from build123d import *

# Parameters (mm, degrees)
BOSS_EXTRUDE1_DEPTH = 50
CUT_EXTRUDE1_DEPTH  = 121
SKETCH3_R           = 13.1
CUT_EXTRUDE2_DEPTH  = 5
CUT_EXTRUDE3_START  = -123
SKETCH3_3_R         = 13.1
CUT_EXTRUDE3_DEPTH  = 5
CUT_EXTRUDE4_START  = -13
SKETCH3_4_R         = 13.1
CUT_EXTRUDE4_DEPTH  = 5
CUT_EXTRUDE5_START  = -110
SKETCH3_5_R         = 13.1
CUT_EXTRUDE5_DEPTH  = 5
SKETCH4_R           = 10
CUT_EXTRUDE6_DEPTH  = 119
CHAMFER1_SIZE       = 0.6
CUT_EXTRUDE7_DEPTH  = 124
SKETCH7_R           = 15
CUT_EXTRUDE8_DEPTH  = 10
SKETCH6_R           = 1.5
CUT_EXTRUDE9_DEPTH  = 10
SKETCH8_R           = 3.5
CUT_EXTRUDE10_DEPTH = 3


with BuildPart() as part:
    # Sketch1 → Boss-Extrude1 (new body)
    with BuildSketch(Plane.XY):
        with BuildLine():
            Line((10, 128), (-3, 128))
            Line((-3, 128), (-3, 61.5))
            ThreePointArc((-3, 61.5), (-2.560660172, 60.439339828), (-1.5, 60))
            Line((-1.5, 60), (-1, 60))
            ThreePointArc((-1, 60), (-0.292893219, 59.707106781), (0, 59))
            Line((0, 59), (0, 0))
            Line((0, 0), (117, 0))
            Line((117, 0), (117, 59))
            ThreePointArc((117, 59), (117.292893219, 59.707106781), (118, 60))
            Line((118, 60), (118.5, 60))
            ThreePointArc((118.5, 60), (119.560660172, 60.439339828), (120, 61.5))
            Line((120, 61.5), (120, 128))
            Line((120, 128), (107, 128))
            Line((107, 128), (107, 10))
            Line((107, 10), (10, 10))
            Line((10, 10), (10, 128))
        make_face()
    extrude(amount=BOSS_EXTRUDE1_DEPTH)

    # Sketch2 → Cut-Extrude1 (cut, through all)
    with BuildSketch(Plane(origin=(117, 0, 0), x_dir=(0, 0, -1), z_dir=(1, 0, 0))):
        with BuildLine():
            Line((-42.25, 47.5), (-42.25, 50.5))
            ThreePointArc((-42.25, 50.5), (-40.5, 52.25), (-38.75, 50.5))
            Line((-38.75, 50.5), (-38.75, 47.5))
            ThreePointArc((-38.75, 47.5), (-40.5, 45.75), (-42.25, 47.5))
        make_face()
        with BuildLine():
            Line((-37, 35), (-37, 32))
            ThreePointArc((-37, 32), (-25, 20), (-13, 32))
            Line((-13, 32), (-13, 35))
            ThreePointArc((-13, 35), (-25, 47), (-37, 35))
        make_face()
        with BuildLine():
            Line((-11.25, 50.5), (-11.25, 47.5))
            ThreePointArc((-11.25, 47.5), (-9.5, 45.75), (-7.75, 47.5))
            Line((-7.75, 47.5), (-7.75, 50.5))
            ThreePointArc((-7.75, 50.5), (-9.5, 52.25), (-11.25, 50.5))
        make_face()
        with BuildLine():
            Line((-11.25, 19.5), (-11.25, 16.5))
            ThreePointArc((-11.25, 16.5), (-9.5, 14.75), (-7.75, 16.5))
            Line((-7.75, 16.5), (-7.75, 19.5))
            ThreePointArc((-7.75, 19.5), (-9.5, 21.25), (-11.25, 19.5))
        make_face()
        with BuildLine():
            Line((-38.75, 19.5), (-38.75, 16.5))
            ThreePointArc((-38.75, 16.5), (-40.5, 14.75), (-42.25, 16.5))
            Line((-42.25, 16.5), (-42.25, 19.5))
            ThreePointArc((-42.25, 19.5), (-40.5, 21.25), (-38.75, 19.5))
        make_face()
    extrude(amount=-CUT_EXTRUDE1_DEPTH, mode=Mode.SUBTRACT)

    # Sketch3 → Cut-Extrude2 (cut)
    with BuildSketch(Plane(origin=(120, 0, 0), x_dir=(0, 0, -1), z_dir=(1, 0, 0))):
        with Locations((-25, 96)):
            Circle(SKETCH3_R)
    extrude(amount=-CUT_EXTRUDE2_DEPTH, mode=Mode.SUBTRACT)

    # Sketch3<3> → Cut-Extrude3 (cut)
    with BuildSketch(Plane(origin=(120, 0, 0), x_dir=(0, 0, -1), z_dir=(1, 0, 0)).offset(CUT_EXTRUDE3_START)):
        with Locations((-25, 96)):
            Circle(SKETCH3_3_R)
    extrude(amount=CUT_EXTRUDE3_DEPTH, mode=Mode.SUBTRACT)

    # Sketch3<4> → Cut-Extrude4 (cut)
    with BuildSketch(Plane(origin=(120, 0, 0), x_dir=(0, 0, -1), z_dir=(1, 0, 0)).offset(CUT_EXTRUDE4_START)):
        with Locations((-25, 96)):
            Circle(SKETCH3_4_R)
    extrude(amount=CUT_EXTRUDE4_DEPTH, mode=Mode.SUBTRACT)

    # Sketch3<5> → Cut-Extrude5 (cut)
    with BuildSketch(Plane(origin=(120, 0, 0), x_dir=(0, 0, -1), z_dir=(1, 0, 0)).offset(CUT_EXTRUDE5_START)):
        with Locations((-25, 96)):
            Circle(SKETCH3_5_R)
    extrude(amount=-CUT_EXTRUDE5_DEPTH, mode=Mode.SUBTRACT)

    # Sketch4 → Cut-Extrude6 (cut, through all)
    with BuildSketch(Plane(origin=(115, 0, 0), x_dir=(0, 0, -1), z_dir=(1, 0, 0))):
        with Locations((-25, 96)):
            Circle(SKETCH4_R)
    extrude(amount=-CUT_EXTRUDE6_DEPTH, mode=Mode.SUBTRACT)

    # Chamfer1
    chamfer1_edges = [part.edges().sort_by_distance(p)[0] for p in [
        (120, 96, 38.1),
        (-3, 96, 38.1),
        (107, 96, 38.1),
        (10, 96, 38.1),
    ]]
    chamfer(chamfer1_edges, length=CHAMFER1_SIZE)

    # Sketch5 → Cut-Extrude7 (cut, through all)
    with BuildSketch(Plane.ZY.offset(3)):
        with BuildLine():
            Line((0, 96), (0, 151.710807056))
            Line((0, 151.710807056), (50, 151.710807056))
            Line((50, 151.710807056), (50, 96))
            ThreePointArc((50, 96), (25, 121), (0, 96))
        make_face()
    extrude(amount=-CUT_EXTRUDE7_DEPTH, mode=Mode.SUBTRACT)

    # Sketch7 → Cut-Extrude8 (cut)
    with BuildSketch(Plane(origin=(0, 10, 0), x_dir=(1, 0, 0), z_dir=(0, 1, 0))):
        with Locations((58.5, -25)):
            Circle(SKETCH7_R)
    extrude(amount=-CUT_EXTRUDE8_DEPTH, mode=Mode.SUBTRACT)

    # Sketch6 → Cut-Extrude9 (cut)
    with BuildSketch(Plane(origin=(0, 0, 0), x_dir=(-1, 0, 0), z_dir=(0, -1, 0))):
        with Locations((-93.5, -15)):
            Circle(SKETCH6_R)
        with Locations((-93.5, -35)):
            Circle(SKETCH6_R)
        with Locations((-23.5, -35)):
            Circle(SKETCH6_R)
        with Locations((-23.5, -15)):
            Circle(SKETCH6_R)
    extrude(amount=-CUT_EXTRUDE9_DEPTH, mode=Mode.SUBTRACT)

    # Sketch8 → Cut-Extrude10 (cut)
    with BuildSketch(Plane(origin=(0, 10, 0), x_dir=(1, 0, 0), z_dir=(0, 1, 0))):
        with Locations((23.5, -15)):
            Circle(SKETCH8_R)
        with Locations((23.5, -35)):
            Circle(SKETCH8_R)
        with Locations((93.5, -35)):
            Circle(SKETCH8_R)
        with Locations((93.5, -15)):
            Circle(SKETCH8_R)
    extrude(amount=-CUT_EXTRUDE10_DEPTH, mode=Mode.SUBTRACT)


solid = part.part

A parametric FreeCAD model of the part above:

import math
import FreeCAD as App
import Part
import Sketcher
from FreeCAD import Vector
Q = App.Units.Quantity


def edges_at(feature, points):
    """Names of the edges that pass closest to the given points."""
    edges = feature.Shape.Edges
    near = lambda p: min(range(len(edges)), key=lambda i: edges[i].distToShape(Part.Vertex(*p))[0])
    return sorted({f"Edge{near(p) + 1}" for p in points})

doc = App.newDocument("Part")
params = doc.addObject("Spreadsheet::Sheet", "Params")
for row, (alias, value) in enumerate([
    ("sketch1_radius", "1 mm"),
    ("sketch1_radius2", "1.5 mm"),
    ("sketch1_width", "13 mm"),
    ("sketch1_width2", "117 mm"),
    ("sketch1_width3", "97 mm"),
    ("pad1_length", "50 mm"),
    ("sketch2_radius", "12 mm"),
    ("sketch2_width", "3 mm"),
    ("sketch2_radius2", "1.75 mm"),
    ("sketch3_diameter", "26.2 mm"),
    ("pocket2_length", "5 mm"),
    ("sketch4_diameter", "26.2 mm"),
    ("pocket3_length", "5 mm"),
    ("sketch5_diameter", "26.2 mm"),
    ("pocket4_length", "5 mm"),
    ("sketch6_diameter", "26.2 mm"),
    ("pocket5_length", "5 mm"),
    ("sketch7_diameter", "20 mm"),
    ("chamfer_size", "0.6 mm"),
    ("sketch8_radius", "25 mm"),
    ("sketch9_diameter", "30 mm"),
    ("pocket8_length", "10 mm"),
    ("sketch10_diameter", "3 mm"),
    ("pocket9_length", "10 mm"),
    ("sketch11_diameter", "7 mm"),
    ("pocket10_length", "3 mm"),
], start=1):
    params.set(f"A{row}", alias)
    params.set(f"B{row}", "=" + value)
    params.setAlias(f"B{row}", alias)

body = doc.addObject("PartDesign::Body", "Body")

sketch1 = body.newObject("Sketcher::SketchObject", "Sketch")
sketch1.AttachmentSupport = (doc.getObject("XY_Plane"), [""])
sketch1.MapMode = "FlatFace"
sketch1.addGeometry(Part.LineSegment(Vector(10, 128, 0), Vector(-3, 128, 0)), False)
sketch1.addGeometry(Part.LineSegment(Vector(-3, 128, 0), Vector(-3, 61.5, 0)), False)
sketch1.addGeometry(Part.ArcOfCircle(Part.Circle(Vector(-1.5, 61.5, 0), Vector(0, 0, 1), 1.5), math.radians(180), math.radians(270)), False)
sketch1.addGeometry(Part.LineSegment(Vector(-1.5, 60, 0), Vector(-1, 60, 0)), False)
sketch1.addGeometry(Part.ArcOfCircle(Part.Circle(Vector(-1, 59, 0), Vector(0, 0, 1), 1), math.radians(0), math.radians(90)), False)
sketch1.addGeometry(Part.LineSegment(Vector(0, 59, 0), Vector(0, 0, 0)), False)
sketch1.addGeometry(Part.LineSegment(Vector(0, 0, 0), Vector(117, 0, 0)), False)
sketch1.addGeometry(Part.LineSegment(Vector(117, 0, 0), Vector(117, 59, 0)), False)
sketch1.addGeometry(Part.ArcOfCircle(Part.Circle(Vector(118, 59, 0), Vector(0, 0, 1), 1), math.radians(90), math.radians(180)), False)
sketch1.addGeometry(Part.LineSegment(Vector(118, 60, 0), Vector(118.5, 60, 0)), False)
sketch1.addGeometry(Part.ArcOfCircle(Part.Circle(Vector(118.5, 61.5, 0), Vector(0, 0, 1), 1.5), math.radians(-90), math.radians(0)), False)
sketch1.addGeometry(Part.LineSegment(Vector(120, 61.5, 0), Vector(120, 128, 0)), False)
sketch1.addGeometry(Part.LineSegment(Vector(120, 128, 0), Vector(107, 128, 0)), False)
sketch1.addGeometry(Part.LineSegment(Vector(107, 128, 0), Vector(107, 10, 0)), False)
sketch1.addGeometry(Part.LineSegment(Vector(107, 10, 0), Vector(10, 10, 0)), False)
sketch1.addGeometry(Part.LineSegment(Vector(10, 10, 0), Vector(10, 128, 0)), False)
sketch1.addConstraint(Sketcher.Constraint("Coincident", 0, 2, 1, 1))
sketch1.addConstraint(Sketcher.Constraint("Tangent", 1, 2, 2, 1))
sketch1.addConstraint(Sketcher.Constraint("Tangent", 2, 2, 3, 1))
sketch1.addConstraint(Sketcher.Constraint("Tangent", 3, 2, 4, 2))
sketch1.addConstraint(Sketcher.Constraint("Tangent", 4, 1, 5, 1))
sketch1.addConstraint(Sketcher.Constraint("Coincident", 5, 2, 6, 1))
sketch1.addConstraint(Sketcher.Constraint("Coincident", 6, 2, 7, 1))
sketch1.addConstraint(Sketcher.Constraint("Tangent", 7, 2, 8, 2))
sketch1.addConstraint(Sketcher.Constraint("Tangent", 8, 1, 9, 1))
sketch1.addConstraint(Sketcher.Constraint("Tangent", 9, 2, 10, 1))
sketch1.addConstraint(Sketcher.Constraint("Tangent", 10, 2, 11, 1))
sketch1.addConstraint(Sketcher.Constraint("Coincident", 11, 2, 12, 1))
sketch1.addConstraint(Sketcher.Constraint("Coincident", 12, 2, 13, 1))
sketch1.addConstraint(Sketcher.Constraint("Coincident", 13, 2, 14, 1))
sketch1.addConstraint(Sketcher.Constraint("Coincident", 14, 2, 15, 1))
sketch1.addConstraint(Sketcher.Constraint("Coincident", 15, 2, 0, 1))
sketch1.addConstraint(Sketcher.Constraint("Horizontal", 0))
sketch1.addConstraint(Sketcher.Constraint("Vertical", 1))
sketch1.addConstraint(Sketcher.Constraint("Horizontal", 3))
sketch1.addConstraint(Sketcher.Constraint("Vertical", 5))
sketch1.addConstraint(Sketcher.Constraint("Horizontal", 6))
sketch1.addConstraint(Sketcher.Constraint("Vertical", 7))
sketch1.addConstraint(Sketcher.Constraint("Horizontal", 9))
sketch1.addConstraint(Sketcher.Constraint("Vertical", 11))
sketch1.addConstraint(Sketcher.Constraint("Horizontal", 12))
sketch1.addConstraint(Sketcher.Constraint("Vertical", 13))
sketch1.addConstraint(Sketcher.Constraint("Horizontal", 14))
sketch1.addConstraint(Sketcher.Constraint("Vertical", 15))
sketch1.addConstraint(Sketcher.Constraint("Coincident", 5, 2, -1, 1))
sketch1.addConstraint(Sketcher.Constraint("Equal", 4, 8))
sketch1.addConstraint(Sketcher.Constraint("Equal", 2, 10))
sketch1.addConstraint(Sketcher.Constraint("Horizontal", 4, 3, 8, 3))
sketch1.addConstraint(Sketcher.Constraint("Horizontal", 0, 2, 11, 2))
sketch1.addConstraint(Sketcher.Constraint("Equal", 3, 9))
sketch1.addConstraint(Sketcher.Constraint("Equal", 0, 12))
sketch1.addConstraint(Sketcher.Constraint("Radius", 4, Q("1 mm")))
sketch1.addConstraint(Sketcher.Constraint("Radius", 2, Q("1.5 mm")))
sketch1.addConstraint(Sketcher.Constraint("DistanceX", 0, 2, 0, 1, Q("13 mm")))
sketch1.addConstraint(Sketcher.Constraint("DistanceX", 6, 1, 6, 2, Q("117 mm")))
sketch1.addConstraint(Sketcher.Constraint("DistanceX", 14, 2, 14, 1, Q("97 mm")))
sketch1.addConstraint(Sketcher.Constraint("DistanceY", 5, 2, 5, 1, Q("59 mm")))
sketch1.addConstraint(Sketcher.Constraint("DistanceY", 13, 2, 13, 1, Q("118 mm")))
sketch1.addConstraint(Sketcher.Constraint("DistanceY", 1, 2, 1, 1, Q("66.5 mm")))
sketch1.setExpression("Constraints[35]", "Params.sketch1_radius")
sketch1.setExpression("Constraints[36]", "Params.sketch1_radius2")
sketch1.setExpression("Constraints[37]", "Params.sketch1_width")
sketch1.setExpression("Constraints[38]", "Params.sketch1_width2")
sketch1.setExpression("Constraints[39]", "Params.sketch1_width3")
pad1 = body.newObject("PartDesign::Pad", "Pad")
pad1.Profile = sketch1
pad1.setExpression("Length", "Params.pad1_length")

sketch2 = body.newObject("Sketcher::SketchObject", "Sketch001")
sketch2.AttachmentSupport = (doc.getObject("YZ_Plane"), [""])
sketch2.MapMode = "FlatFace"
sketch2.AttachmentOffset = App.Placement(Vector(0, 0, 117), App.Rotation())
sketch2.addGeometry(Part.LineSegment(Vector(50.5, 42.25, 0), Vector(47.5, 42.25, 0)), False)
sketch2.addGeometry(Part.ArcOfCircle(Part.Circle(Vector(47.5, 40.5, 0), Vector(0, 0, 1), 1.75), math.radians(90), math.radians(270)), False)
sketch2.addGeometry(Part.LineSegment(Vector(47.5, 38.75, 0), Vector(50.5, 38.75, 0)), False)
sketch2.addGeometry(Part.ArcOfCircle(Part.Circle(Vector(50.5, 40.5, 0), Vector(0, 0, 1), 1.75), math.radians(-90), math.radians(90)), False)
sketch2.addGeometry(Part.LineSegment(Vector(35, 37, 0), Vector(32, 37, 0)), False)
sketch2.addGeometry(Part.ArcOfCircle(Part.Circle(Vector(32, 25, 0), Vector(0, 0, 1), 12), math.radians(90), math.radians(270)), False)
sketch2.addGeometry(Part.LineSegment(Vector(32, 13, 0), Vector(35, 13, 0)), False)
sketch2.addGeometry(Part.ArcOfCircle(Part.Circle(Vector(35, 25, 0), Vector(0, 0, 1), 12), math.radians(-90), math.radians(90)), False)
sketch2.addGeometry(Part.LineSegment(Vector(50.5, 11.25, 0), Vector(47.5, 11.25, 0)), False)
sketch2.addGeometry(Part.ArcOfCircle(Part.Circle(Vector(47.5, 9.5, 0), Vector(0, 0, 1), 1.75), math.radians(90), math.radians(270)), False)
sketch2.addGeometry(Part.LineSegment(Vector(47.5, 7.75, 0), Vector(50.5, 7.75, 0)), False)
sketch2.addGeometry(Part.ArcOfCircle(Part.Circle(Vector(50.5, 9.5, 0), Vector(0, 0, 1), 1.75), math.radians(-90), math.radians(90)), False)
sketch2.addGeometry(Part.LineSegment(Vector(19.5, 11.25, 0), Vector(16.5, 11.25, 0)), False)
sketch2.addGeometry(Part.ArcOfCircle(Part.Circle(Vector(16.5, 9.5, 0), Vector(0, 0, 1), 1.75), math.radians(90), math.radians(270)), False)
sketch2.addGeometry(Part.LineSegment(Vector(16.5, 7.75, 0), Vector(19.5, 7.75, 0)), False)
sketch2.addGeometry(Part.ArcOfCircle(Part.Circle(Vector(19.5, 9.5, 0), Vector(0, 0, 1), 1.75), math.radians(-90), math.radians(90)), False)
sketch2.addGeometry(Part.LineSegment(Vector(16.5, 38.75, 0), Vector(19.5, 38.75, 0)), False)
sketch2.addGeometry(Part.ArcOfCircle(Part.Circle(Vector(19.5, 40.5, 0), Vector(0, 0, 1), 1.75), math.radians(-90), math.radians(90)), False)
sketch2.addGeometry(Part.LineSegment(Vector(19.5, 42.25, 0), Vector(16.5, 42.25, 0)), False)
sketch2.addGeometry(Part.ArcOfCircle(Part.Circle(Vector(16.5, 40.5, 0), Vector(0, 0, 1), 1.75), math.radians(90), math.radians(270)), False)
sketch2.addConstraint(Sketcher.Constraint("Tangent", 0, 2, 1, 1))
sketch2.addConstraint(Sketcher.Constraint("Tangent", 1, 2, 2, 1))
sketch2.addConstraint(Sketcher.Constraint("Tangent", 2, 2, 3, 1))
sketch2.addConstraint(Sketcher.Constraint("Tangent", 3, 2, 0, 1))
sketch2.addConstraint(Sketcher.Constraint("Tangent", 4, 2, 5, 1))
sketch2.addConstraint(Sketcher.Constraint("Tangent", 5, 2, 6, 1))
sketch2.addConstraint(Sketcher.Constraint("Tangent", 6, 2, 7, 1))
sketch2.addConstraint(Sketcher.Constraint("Tangent", 7, 2, 4, 1))
sketch2.addConstraint(Sketcher.Constraint("Tangent", 8, 2, 9, 1))
sketch2.addConstraint(Sketcher.Constraint("Tangent", 9, 2, 10, 1))
sketch2.addConstraint(Sketcher.Constraint("Tangent", 10, 2, 11, 1))
sketch2.addConstraint(Sketcher.Constraint("Tangent", 11, 2, 8, 1))
sketch2.addConstraint(Sketcher.Constraint("Tangent", 12, 2, 13, 1))
sketch2.addConstraint(Sketcher.Constraint("Tangent", 13, 2, 14, 1))
sketch2.addConstraint(Sketcher.Constraint("Tangent", 14, 2, 15, 1))
sketch2.addConstraint(Sketcher.Constraint("Tangent", 15, 2, 12, 1))
sketch2.addConstraint(Sketcher.Constraint("Tangent", 16, 2, 17, 1))
sketch2.addConstraint(Sketcher.Constraint("Tangent", 17, 2, 18, 1))
sketch2.addConstraint(Sketcher.Constraint("Tangent", 18, 2, 19, 1))
sketch2.addConstraint(Sketcher.Constraint("Tangent", 19, 2, 16, 1))
sketch2.addConstraint(Sketcher.Constraint("Horizontal", 0))
sketch2.addConstraint(Sketcher.Constraint("Horizontal", 2))
sketch2.addConstraint(Sketcher.Constraint("Horizontal", 4))
sketch2.addConstraint(Sketcher.Constraint("Horizontal", 6))
sketch2.addConstraint(Sketcher.Constraint("Horizontal", 8))
sketch2.addConstraint(Sketcher.Constraint("Horizontal", 10))
sketch2.addConstraint(Sketcher.Constraint("Horizontal", 12))
sketch2.addConstraint(Sketcher.Constraint("Horizontal", 14))
sketch2.addConstraint(Sketcher.Constraint("Horizontal", 16))
sketch2.addConstraint(Sketcher.Constraint("Horizontal", 18))
sketch2.addConstraint(Sketcher.Constraint("Equal", 3, 9))
sketch2.addConstraint(Sketcher.Constraint("Equal", 11, 13))
sketch2.addConstraint(Sketcher.Constraint("Equal", 15, 17))
sketch2.addConstraint(Sketcher.Constraint("Horizontal", 11, 3, 13, 3))
sketch2.addConstraint(Sketcher.Constraint("Horizontal", 3, 3, 17, 3))
sketch2.addConstraint(Sketcher.Constraint("Vertical", 1, 3, 9, 3))
sketch2.addConstraint(Sketcher.Constraint("Vertical", 3, 3, 11, 3))
sketch2.addConstraint(Sketcher.Constraint("Vertical", 15, 3, 17, 3))
sketch2.addConstraint(Sketcher.Constraint("Vertical", 13, 3, 19, 3))
sketch2.addConstraint(Sketcher.Constraint("Equal", 2, 4))
sketch2.addConstraint(Sketcher.Constraint("Equal", 10, 12))
sketch2.addConstraint(Sketcher.Constraint("Radius", 5, Q("12 mm")))
sketch2.addConstraint(Sketcher.Constraint("DistanceX", 0, 2, 0, 1, Q("3 mm")))
sketch2.addConstraint(Sketcher.Constraint("Radius", 1, Q("1.75 mm")))
sketch2.addConstraint(Sketcher.Constraint("DistanceX", -1, 1, 5, 3, Q("32 mm")))
sketch2.addConstraint(Sketcher.Constraint("DistanceY", -1, 1, 5, 3, Q("25 mm")))
sketch2.addConstraint(Sketcher.Constraint("DistanceY", 9, 3, 1, 3, Q("31 mm")))
sketch2.addConstraint(Sketcher.Constraint("DistanceX", 13, 3, 9, 3, Q("31 mm")))
sketch2.addConstraint(Sketcher.Constraint("DistanceX", -1, 1, 1, 3, Q("47.5 mm")))
sketch2.addConstraint(Sketcher.Constraint("DistanceY", -1, 1, 1, 3, Q("40.5 mm")))
sketch2.setExpression("Constraints[41]", "Params.sketch2_radius")
sketch2.setExpression("Constraints[42]", "Params.sketch2_width")
sketch2.setExpression("Constraints[43]", "Params.sketch2_radius2")
pocket1 = body.newObject("PartDesign::Pocket", "Pocket")
pocket1.Profile = sketch2
pocket1.Type = "ThroughAll"

sketch3 = body.newObject("Sketcher::SketchObject", "Sketch002")
sketch3.AttachmentSupport = (doc.getObject("YZ_Plane"), [""])
sketch3.MapMode = "FlatFace"
sketch3.AttachmentOffset = App.Placement(Vector(0, 0, 120), App.Rotation())
sketch3.addGeometry(Part.Circle(Vector(96, 25, 0), Vector(0, 0, 1), 13.1), False)
sketch3.addConstraint(Sketcher.Constraint("Diameter", 0, Q("26.2 mm")))
sketch3.addConstraint(Sketcher.Constraint("DistanceX", -1, 1, 0, 3, Q("96 mm")))
sketch3.addConstraint(Sketcher.Constraint("DistanceY", -1, 1, 0, 3, Q("25 mm")))
sketch3.setExpression("Constraints[0]", "Params.sketch3_diameter")
pocket2 = body.newObject("PartDesign::Pocket", "Pocket001")
pocket2.Profile = sketch3
pocket2.setExpression("Length", "Params.pocket2_length")

sketch4 = body.newObject("Sketcher::SketchObject", "Sketch003")
sketch4.AttachmentSupport = (doc.getObject("YZ_Plane"), [""])
sketch4.MapMode = "FlatFace"
sketch4.AttachmentOffset = App.Placement(Vector(0, 0, -3), App.Rotation())
sketch4.addGeometry(Part.Circle(Vector(96, 25, 0), Vector(0, 0, 1), 13.1), False)
sketch4.addConstraint(Sketcher.Constraint("Diameter", 0, Q("26.2 mm")))
sketch4.addConstraint(Sketcher.Constraint("DistanceX", -1, 1, 0, 3, Q("96 mm")))
sketch4.addConstraint(Sketcher.Constraint("DistanceY", -1, 1, 0, 3, Q("25 mm")))
sketch4.setExpression("Constraints[0]", "Params.sketch4_diameter")
pocket3 = body.newObject("PartDesign::Pocket", "Pocket002")
pocket3.Profile = sketch4
pocket3.setExpression("Length", "Params.pocket3_length")
pocket3.Reversed = True

sketch5 = body.newObject("Sketcher::SketchObject", "Sketch004")
sketch5.AttachmentSupport = (doc.getObject("YZ_Plane"), [""])
sketch5.MapMode = "FlatFace"
sketch5.AttachmentOffset = App.Placement(Vector(0, 0, 107), App.Rotation())
sketch5.addGeometry(Part.Circle(Vector(96, 25, 0), Vector(0, 0, 1), 13.1), False)
sketch5.addConstraint(Sketcher.Constraint("Diameter", 0, Q("26.2 mm")))
sketch5.addConstraint(Sketcher.Constraint("DistanceX", -1, 1, 0, 3, Q("96 mm")))
sketch5.addConstraint(Sketcher.Constraint("DistanceY", -1, 1, 0, 3, Q("25 mm")))
sketch5.setExpression("Constraints[0]", "Params.sketch5_diameter")
pocket4 = body.newObject("PartDesign::Pocket", "Pocket003")
pocket4.Profile = sketch5
pocket4.setExpression("Length", "Params.pocket4_length")
pocket4.Reversed = True

sketch6 = body.newObject("Sketcher::SketchObject", "Sketch005")
sketch6.AttachmentSupport = (doc.getObject("YZ_Plane"), [""])
sketch6.MapMode = "FlatFace"
sketch6.AttachmentOffset = App.Placement(Vector(0, 0, 10), App.Rotation())
sketch6.addGeometry(Part.Circle(Vector(96, 25, 0), Vector(0, 0, 1), 13.1), False)
sketch6.addConstraint(Sketcher.Constraint("Diameter", 0, Q("26.2 mm")))
sketch6.addConstraint(Sketcher.Constraint("DistanceX", -1, 1, 0, 3, Q("96 mm")))
sketch6.addConstraint(Sketcher.Constraint("DistanceY", -1, 1, 0, 3, Q("25 mm")))
sketch6.setExpression("Constraints[0]", "Params.sketch6_diameter")
pocket5 = body.newObject("PartDesign::Pocket", "Pocket004")
pocket5.Profile = sketch6
pocket5.setExpression("Length", "Params.pocket5_length")

sketch7 = body.newObject("Sketcher::SketchObject", "Sketch006")
sketch7.AttachmentSupport = (doc.getObject("YZ_Plane"), [""])
sketch7.MapMode = "FlatFace"
sketch7.AttachmentOffset = App.Placement(Vector(0, 0, 115), App.Rotation())
sketch7.addGeometry(Part.Circle(Vector(96, 25, 0), Vector(0, 0, 1), 10), False)
sketch7.addConstraint(Sketcher.Constraint("Diameter", 0, Q("20 mm")))
sketch7.addConstraint(Sketcher.Constraint("DistanceX", -1, 1, 0, 3, Q("96 mm")))
sketch7.addConstraint(Sketcher.Constraint("DistanceY", -1, 1, 0, 3, Q("25 mm")))
sketch7.setExpression("Constraints[0]", "Params.sketch7_diameter")
pocket6 = body.newObject("PartDesign::Pocket", "Pocket005")
pocket6.Profile = sketch7
pocket6.Type = "ThroughAll"
doc.recompute()

chamfer = body.newObject("PartDesign::Chamfer", "Chamfer")
chamfer.Base = (pocket6, edges_at(pocket6, [
    (120, 96, 38.1),
    (-3, 96, 38.1),
    (107, 96, 38.1),
    (10, 96, 38.1),
]))
chamfer.setExpression("Size", "Params.chamfer_size")

sketch8 = body.newObject("Sketcher::SketchObject", "Sketch007")
sketch8.AttachmentSupport = (doc.getObject("YZ_Plane"), [""])
sketch8.MapMode = "FlatFace"
sketch8.AttachmentOffset = App.Placement(Vector(0, 0, -3), App.Rotation())
sketch8.addGeometry(Part.LineSegment(Vector(151.710807, 0, 0), Vector(96, 0, 0)), False)
sketch8.addGeometry(Part.ArcOfCircle(Part.Circle(Vector(96, 25, 0), Vector(0, 0, 1), 25), math.radians(-90), math.radians(90)), False)
sketch8.addGeometry(Part.LineSegment(Vector(96, 50, 0), Vector(151.710807, 50, 0)), False)
sketch8.addGeometry(Part.LineSegment(Vector(151.710807, 50, 0), Vector(151.710807, 0, 0)), False)
sketch8.addConstraint(Sketcher.Constraint("Tangent", 0, 2, 1, 1))
sketch8.addConstraint(Sketcher.Constraint("Tangent", 1, 2, 2, 1))
sketch8.addConstraint(Sketcher.Constraint("Coincident", 2, 2, 3, 1))
sketch8.addConstraint(Sketcher.Constraint("Coincident", 3, 2, 0, 1))
sketch8.addConstraint(Sketcher.Constraint("Horizontal", 0))
sketch8.addConstraint(Sketcher.Constraint("Horizontal", 2))
sketch8.addConstraint(Sketcher.Constraint("Vertical", 3))
sketch8.addConstraint(Sketcher.Constraint("PointOnObject", 0, 2, -1))
sketch8.addConstraint(Sketcher.Constraint("Radius", 1, Q("25 mm")))
sketch8.addConstraint(Sketcher.Constraint("DistanceX", -1, 1, 1, 3, Q("96 mm")))
sketch8.addConstraint(Sketcher.Constraint("DistanceX", 0, 2, 0, 1, Q("55.710807 mm")))
sketch8.setExpression("Constraints[8]", "Params.sketch8_radius")
pocket7 = body.newObject("PartDesign::Pocket", "Pocket006")
pocket7.Profile = sketch8
pocket7.Type = "ThroughAll"
pocket7.Reversed = True

sketch9 = body.newObject("Sketcher::SketchObject", "Sketch008")
sketch9.AttachmentSupport = (doc.getObject("XZ_Plane"), [""])
sketch9.MapMode = "FlatFace"
sketch9.AttachmentOffset = App.Placement(Vector(0, 0, -10), App.Rotation())
sketch9.addGeometry(Part.Circle(Vector(58.5, 25, 0), Vector(0, 0, 1), 15), False)
sketch9.addConstraint(Sketcher.Constraint("Diameter", 0, Q("30 mm")))
sketch9.addConstraint(Sketcher.Constraint("DistanceY", -1, 1, 0, 3, Q("25 mm")))
sketch9.addConstraint(Sketcher.Constraint("DistanceX", -1, 1, 0, 3, Q("58.5 mm")))
sketch9.setExpression("Constraints[0]", "Params.sketch9_diameter")
pocket8 = body.newObject("PartDesign::Pocket", "Pocket007")
pocket8.Profile = sketch9
pocket8.setExpression("Length", "Params.pocket8_length")
pocket8.Reversed = True

sketch10 = body.newObject("Sketcher::SketchObject", "Sketch009")
sketch10.AttachmentSupport = (doc.getObject("XZ_Plane"), [""])
sketch10.MapMode = "FlatFace"
sketch10.addGeometry(Part.Circle(Vector(93.5, 15, 0), Vector(0, 0, 1), 1.5), False)
sketch10.addGeometry(Part.Circle(Vector(93.5, 35, 0), Vector(0, 0, 1), 1.5), False)
sketch10.addGeometry(Part.Circle(Vector(23.5, 35, 0), Vector(0, 0, 1), 1.5), False)
sketch10.addGeometry(Part.Circle(Vector(23.5, 15, 0), Vector(0, 0, 1), 1.5), False)
sketch10.addConstraint(Sketcher.Constraint("Equal", 0, 1))
sketch10.addConstraint(Sketcher.Constraint("Equal", 1, 2))
sketch10.addConstraint(Sketcher.Constraint("Equal", 2, 3))
sketch10.addConstraint(Sketcher.Constraint("Horizontal", 1, 3, 2, 3))
sketch10.addConstraint(Sketcher.Constraint("Horizontal", 0, 3, 3, 3))
sketch10.addConstraint(Sketcher.Constraint("Vertical", 0, 3, 1, 3))
sketch10.addConstraint(Sketcher.Constraint("Vertical", 2, 3, 3, 3))
sketch10.addConstraint(Sketcher.Constraint("Diameter", 0, Q("3 mm")))
sketch10.addConstraint(Sketcher.Constraint("DistanceY", -1, 1, 0, 3, Q("15 mm")))
sketch10.addConstraint(Sketcher.Constraint("DistanceY", -1, 1, 1, 3, Q("35 mm")))
sketch10.addConstraint(Sketcher.Constraint("DistanceX", 2, 3, 1, 3, Q("70 mm")))
sketch10.addConstraint(Sketcher.Constraint("DistanceX", -1, 1, 0, 3, Q("93.5 mm")))
sketch10.setExpression("Constraints[7]", "Params.sketch10_diameter")
pocket9 = body.newObject("PartDesign::Pocket", "Pocket008")
pocket9.Profile = sketch10
pocket9.setExpression("Length", "Params.pocket9_length")

sketch11 = body.newObject("Sketcher::SketchObject", "Sketch010")
sketch11.AttachmentSupport = (doc.getObject("XZ_Plane"), [""])
sketch11.MapMode = "FlatFace"
sketch11.AttachmentOffset = App.Placement(Vector(0, 0, -10), App.Rotation())
sketch11.addGeometry(Part.Circle(Vector(23.5, 15, 0), Vector(0, 0, 1), 3.5), False)
sketch11.addGeometry(Part.Circle(Vector(23.5, 35, 0), Vector(0, 0, 1), 3.5), False)
sketch11.addGeometry(Part.Circle(Vector(93.5, 35, 0), Vector(0, 0, 1), 3.5), False)
sketch11.addGeometry(Part.Circle(Vector(93.5, 15, 0), Vector(0, 0, 1), 3.5), False)
sketch11.addConstraint(Sketcher.Constraint("Equal", 0, 1))
sketch11.addConstraint(Sketcher.Constraint("Equal", 1, 2))
sketch11.addConstraint(Sketcher.Constraint("Equal", 2, 3))
sketch11.addConstraint(Sketcher.Constraint("Horizontal", 1, 3, 2, 3))
sketch11.addConstraint(Sketcher.Constraint("Horizontal", 0, 3, 3, 3))
sketch11.addConstraint(Sketcher.Constraint("Vertical", 0, 3, 1, 3))
sketch11.addConstraint(Sketcher.Constraint("Vertical", 2, 3, 3, 3))
sketch11.addConstraint(Sketcher.Constraint("Diameter", 0, Q("7 mm")))
sketch11.addConstraint(Sketcher.Constraint("DistanceY", -1, 1, 0, 3, Q("15 mm")))
sketch11.addConstraint(Sketcher.Constraint("DistanceY", -1, 1, 1, 3, Q("35 mm")))
sketch11.addConstraint(Sketcher.Constraint("DistanceX", 1, 3, 2, 3, Q("70 mm")))
sketch11.addConstraint(Sketcher.Constraint("DistanceX", -1, 1, 0, 3, Q("23.5 mm")))
sketch11.setExpression("Constraints[7]", "Params.sketch11_diameter")
pocket10 = body.newObject("PartDesign::Pocket", "Pocket009")
pocket10.Profile = sketch11
pocket10.setExpression("Length", "Params.pocket10_length")
pocket10.Reversed = True

doc.recompute()
